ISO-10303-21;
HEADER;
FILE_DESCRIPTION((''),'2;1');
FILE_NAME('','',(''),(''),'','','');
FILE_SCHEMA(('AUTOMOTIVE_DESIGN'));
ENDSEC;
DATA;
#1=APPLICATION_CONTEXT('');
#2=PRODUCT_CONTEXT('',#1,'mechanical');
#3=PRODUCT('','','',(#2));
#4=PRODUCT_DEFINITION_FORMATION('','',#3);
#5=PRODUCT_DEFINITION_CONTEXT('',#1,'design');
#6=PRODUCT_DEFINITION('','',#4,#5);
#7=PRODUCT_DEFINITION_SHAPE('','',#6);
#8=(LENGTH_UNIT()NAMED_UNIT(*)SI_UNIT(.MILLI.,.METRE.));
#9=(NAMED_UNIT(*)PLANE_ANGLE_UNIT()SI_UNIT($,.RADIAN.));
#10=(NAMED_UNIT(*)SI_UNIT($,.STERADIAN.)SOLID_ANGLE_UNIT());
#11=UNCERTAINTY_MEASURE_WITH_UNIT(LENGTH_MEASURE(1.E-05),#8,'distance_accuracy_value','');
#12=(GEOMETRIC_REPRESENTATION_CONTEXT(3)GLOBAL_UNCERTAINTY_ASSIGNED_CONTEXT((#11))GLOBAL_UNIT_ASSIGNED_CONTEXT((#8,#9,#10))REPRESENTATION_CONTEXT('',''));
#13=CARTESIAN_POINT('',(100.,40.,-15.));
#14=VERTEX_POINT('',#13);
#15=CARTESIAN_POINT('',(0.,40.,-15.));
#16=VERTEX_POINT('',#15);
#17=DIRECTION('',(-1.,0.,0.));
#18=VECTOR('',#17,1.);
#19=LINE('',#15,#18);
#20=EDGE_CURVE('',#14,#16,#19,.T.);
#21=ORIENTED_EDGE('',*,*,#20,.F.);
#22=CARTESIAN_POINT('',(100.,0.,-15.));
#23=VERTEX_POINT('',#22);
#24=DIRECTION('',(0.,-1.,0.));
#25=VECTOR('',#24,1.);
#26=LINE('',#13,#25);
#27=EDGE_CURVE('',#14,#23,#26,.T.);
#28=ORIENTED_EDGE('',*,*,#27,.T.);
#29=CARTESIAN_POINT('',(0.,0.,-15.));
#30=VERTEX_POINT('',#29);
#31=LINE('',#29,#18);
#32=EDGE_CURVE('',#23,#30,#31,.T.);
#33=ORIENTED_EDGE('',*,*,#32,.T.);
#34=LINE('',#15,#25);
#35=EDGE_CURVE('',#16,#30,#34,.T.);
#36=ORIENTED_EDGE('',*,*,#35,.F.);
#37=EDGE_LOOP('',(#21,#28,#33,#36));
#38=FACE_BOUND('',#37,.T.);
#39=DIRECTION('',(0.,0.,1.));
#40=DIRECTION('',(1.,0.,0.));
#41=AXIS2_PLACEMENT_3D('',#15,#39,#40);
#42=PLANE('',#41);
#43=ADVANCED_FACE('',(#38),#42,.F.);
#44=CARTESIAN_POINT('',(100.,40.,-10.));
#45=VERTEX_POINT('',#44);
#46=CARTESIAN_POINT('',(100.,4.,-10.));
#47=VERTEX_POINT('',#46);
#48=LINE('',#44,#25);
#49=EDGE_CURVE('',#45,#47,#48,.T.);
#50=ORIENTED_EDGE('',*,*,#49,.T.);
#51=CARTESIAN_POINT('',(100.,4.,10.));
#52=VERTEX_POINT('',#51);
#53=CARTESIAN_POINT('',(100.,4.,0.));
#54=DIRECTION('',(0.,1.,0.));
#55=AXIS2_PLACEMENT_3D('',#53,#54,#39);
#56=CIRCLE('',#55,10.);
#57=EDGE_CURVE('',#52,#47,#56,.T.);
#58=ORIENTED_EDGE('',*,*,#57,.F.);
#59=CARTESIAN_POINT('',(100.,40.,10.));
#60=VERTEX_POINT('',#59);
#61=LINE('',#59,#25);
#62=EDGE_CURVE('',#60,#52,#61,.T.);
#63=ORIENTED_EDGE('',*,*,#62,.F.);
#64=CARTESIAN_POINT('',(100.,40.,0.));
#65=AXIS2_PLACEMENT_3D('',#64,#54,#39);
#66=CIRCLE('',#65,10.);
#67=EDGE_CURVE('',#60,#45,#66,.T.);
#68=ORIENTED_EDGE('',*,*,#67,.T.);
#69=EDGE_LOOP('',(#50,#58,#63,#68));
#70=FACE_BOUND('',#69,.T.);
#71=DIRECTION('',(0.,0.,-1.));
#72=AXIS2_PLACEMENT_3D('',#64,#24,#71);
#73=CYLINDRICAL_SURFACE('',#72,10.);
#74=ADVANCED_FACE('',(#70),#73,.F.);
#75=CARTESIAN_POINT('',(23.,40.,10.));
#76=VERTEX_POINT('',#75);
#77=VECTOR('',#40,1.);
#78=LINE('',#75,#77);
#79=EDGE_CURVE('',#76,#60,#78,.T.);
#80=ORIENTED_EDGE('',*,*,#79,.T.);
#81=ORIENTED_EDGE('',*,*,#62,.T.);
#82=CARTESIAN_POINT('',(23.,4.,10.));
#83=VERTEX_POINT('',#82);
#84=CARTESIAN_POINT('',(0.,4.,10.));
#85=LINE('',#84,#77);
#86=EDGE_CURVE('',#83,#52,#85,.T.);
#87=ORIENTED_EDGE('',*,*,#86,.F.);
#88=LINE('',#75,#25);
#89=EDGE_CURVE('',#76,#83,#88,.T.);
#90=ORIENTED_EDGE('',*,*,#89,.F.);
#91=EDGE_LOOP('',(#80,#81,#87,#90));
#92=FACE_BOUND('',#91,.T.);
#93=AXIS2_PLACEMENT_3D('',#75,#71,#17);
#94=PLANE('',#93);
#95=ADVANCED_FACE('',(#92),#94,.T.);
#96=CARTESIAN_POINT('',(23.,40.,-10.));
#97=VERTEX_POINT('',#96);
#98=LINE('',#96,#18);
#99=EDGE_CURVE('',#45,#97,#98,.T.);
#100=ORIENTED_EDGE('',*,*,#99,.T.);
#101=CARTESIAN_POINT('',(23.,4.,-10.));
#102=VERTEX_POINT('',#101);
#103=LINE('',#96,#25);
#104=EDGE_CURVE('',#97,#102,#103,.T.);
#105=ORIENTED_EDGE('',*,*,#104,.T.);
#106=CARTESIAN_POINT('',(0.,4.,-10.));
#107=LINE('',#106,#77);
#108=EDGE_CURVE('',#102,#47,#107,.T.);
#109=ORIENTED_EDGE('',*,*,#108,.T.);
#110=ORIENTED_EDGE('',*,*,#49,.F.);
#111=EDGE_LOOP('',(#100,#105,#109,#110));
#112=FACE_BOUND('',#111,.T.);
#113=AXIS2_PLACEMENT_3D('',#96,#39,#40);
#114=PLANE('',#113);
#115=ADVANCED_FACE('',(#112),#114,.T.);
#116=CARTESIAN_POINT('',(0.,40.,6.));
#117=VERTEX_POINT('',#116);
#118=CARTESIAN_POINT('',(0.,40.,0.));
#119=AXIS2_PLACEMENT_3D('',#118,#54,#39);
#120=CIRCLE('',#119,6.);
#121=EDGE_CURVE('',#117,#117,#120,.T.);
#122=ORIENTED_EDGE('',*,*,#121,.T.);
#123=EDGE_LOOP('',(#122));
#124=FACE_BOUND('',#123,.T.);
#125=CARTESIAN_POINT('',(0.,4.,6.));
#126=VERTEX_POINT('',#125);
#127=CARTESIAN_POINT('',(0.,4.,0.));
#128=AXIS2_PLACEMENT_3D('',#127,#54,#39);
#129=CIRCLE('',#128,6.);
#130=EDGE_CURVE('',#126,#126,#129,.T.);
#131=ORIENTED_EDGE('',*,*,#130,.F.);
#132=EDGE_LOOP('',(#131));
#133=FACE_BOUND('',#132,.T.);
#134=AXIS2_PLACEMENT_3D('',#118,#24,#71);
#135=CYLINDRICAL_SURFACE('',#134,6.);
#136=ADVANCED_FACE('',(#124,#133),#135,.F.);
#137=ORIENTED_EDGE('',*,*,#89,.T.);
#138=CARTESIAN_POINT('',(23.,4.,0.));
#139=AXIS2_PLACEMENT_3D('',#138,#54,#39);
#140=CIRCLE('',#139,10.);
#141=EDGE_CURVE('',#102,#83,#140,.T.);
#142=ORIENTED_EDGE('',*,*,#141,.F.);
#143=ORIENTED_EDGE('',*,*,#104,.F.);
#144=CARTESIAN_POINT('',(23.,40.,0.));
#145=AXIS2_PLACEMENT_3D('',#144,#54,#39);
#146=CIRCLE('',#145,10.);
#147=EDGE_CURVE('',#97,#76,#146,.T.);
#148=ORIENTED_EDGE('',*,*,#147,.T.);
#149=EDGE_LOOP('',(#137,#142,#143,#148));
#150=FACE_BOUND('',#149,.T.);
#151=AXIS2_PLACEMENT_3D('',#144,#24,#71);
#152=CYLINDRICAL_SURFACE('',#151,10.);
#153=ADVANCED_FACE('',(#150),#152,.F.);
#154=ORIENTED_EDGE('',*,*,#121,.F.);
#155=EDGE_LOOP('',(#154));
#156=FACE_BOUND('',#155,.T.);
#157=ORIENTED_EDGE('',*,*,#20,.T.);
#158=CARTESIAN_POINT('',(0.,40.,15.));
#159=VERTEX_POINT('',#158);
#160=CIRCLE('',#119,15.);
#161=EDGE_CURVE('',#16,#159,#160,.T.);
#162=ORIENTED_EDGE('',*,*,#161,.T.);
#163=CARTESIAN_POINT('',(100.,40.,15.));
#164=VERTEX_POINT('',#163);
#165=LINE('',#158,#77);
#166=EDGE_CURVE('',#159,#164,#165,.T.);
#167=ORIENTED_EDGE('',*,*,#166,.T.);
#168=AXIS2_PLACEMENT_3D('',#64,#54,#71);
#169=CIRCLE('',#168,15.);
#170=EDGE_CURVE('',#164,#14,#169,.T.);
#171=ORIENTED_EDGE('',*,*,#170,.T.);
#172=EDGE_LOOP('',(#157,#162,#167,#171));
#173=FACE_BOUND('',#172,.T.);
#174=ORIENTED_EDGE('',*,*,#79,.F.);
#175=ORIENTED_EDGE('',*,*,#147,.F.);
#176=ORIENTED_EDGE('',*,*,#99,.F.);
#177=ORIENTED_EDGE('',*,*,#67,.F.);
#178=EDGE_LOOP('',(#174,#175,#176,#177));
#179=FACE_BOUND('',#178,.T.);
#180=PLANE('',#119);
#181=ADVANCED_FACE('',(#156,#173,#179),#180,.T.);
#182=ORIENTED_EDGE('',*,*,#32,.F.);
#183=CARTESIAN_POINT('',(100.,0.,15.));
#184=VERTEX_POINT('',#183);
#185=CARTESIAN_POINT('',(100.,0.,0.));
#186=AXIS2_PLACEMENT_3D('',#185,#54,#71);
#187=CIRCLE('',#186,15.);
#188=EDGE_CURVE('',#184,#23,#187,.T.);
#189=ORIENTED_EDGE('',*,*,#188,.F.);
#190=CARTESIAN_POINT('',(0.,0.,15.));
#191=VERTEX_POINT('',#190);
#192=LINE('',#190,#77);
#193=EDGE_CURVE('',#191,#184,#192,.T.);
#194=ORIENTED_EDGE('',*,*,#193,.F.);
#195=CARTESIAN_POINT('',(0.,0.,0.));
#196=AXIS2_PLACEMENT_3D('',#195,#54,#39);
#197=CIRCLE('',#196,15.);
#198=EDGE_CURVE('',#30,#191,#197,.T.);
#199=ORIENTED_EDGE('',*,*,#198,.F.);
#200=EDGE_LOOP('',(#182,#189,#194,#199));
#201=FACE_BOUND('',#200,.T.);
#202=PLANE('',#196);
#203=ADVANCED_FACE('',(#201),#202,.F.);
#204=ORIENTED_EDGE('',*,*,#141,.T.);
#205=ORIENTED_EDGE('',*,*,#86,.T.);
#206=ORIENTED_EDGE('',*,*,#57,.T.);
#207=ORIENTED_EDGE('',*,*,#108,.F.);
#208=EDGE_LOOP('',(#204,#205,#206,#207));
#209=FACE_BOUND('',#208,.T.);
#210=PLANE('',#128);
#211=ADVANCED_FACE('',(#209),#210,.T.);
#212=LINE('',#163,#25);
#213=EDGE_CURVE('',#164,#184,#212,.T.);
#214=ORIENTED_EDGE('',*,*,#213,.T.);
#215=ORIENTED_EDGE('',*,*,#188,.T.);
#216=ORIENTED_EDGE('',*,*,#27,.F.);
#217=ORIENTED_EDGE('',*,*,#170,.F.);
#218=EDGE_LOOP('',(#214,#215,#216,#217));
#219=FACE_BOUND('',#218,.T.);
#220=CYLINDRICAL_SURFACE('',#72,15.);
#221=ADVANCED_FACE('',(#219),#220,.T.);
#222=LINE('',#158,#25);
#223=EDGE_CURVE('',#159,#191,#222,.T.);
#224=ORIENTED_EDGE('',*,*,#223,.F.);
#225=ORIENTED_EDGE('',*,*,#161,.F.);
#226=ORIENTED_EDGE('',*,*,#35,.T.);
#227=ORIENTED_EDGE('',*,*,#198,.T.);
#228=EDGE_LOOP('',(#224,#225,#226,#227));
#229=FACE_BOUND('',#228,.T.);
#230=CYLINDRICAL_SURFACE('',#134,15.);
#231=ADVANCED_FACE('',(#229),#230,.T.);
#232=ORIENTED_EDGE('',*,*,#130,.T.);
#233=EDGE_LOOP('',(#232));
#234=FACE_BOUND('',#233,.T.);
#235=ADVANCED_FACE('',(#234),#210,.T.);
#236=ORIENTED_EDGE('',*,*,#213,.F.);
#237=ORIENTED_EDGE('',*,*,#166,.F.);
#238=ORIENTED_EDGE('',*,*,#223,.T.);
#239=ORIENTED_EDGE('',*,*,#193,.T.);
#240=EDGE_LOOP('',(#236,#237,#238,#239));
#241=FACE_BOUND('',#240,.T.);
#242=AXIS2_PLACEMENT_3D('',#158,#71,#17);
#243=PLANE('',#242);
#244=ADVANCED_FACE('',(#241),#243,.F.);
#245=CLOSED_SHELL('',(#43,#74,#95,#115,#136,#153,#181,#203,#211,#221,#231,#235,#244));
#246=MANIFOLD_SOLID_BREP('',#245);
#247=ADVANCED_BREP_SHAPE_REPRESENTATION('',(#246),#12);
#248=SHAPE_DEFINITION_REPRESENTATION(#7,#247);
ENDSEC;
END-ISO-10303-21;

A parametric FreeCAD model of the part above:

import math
import FreeCAD as App
import Part
import Sketcher

V = App.Vector
Q = App.Units.Quantity

doc = App.newDocument("Part")
body = doc.addObject("PartDesign::Body", "Body")

# Sketch on XZ plane
sketch1 = doc.addObject("Sketcher::SketchObject", "Sketch")
body.addObject(sketch1)
sketch1.AttachmentSupport = (doc.XZ_Plane, [""])
sketch1.MapMode = "FlatFace"
sketch1.addGeometry([
    Part.LineSegment(V(0, 15, 0), V(100, 15, 0)),  # 0
    Part.ArcOfCircle(Part.Circle(V(100, 0, 0), V(0, 0, 1), 15), math.radians(-90), math.radians(90)),  # 1
    Part.LineSegment(V(100, -15, 0), V(0, -15, 0)),  # 2
    Part.ArcOfCircle(Part.Circle(V(0, 0, 0), V(0, 0, 1), 15), math.radians(90), math.radians(270)),  # 3
    Part.Circle(V(0, 0, 0), V(0, 0, 1), 6),  # 4
    Part.ArcOfCircle(Part.Circle(V(23, 0, 0), V(0, 0, 1), 10), math.radians(90), math.radians(270)),  # 5
    Part.LineSegment(V(23, -10, 0), V(100, -10, 0)),  # 6
    Part.ArcOfCircle(Part.Circle(V(100, 0, 0), V(0, 0, 1), 10), math.radians(-90), math.radians(90)),  # 7
    Part.LineSegment(V(100, 10, 0), V(23, 10, 0)),  # 8
], False)
sketch1.addConstraint([
    Sketcher.Constraint("Tangent", 0, 2, 1, 2),
    Sketcher.Constraint("Tangent", 1, 1, 2, 1),
    Sketcher.Constraint("Tangent", 2, 2, 3, 2),
    Sketcher.Constraint("Tangent", 3, 1, 0, 1),
    Sketcher.Constraint("Tangent", 5, 2, 6, 1),
    Sketcher.Constraint("Tangent", 6, 2, 7, 1),
    Sketcher.Constraint("Tangent", 7, 2, 8, 1),
    Sketcher.Constraint("Tangent", 8, 2, 5, 1),
    Sketcher.Constraint("Horizontal", 0),
    Sketcher.Constraint("Horizontal", 2),
    Sketcher.Constraint("Horizontal", 6),
    Sketcher.Constraint("Horizontal", 8),
    Sketcher.Constraint("Coincident", 3, 3, -1, 1),
    Sketcher.Constraint("Coincident", 4, 3, -1, 1),
    Sketcher.Constraint("Coincident", 7, 3, 1, 3),
    Sketcher.Constraint("Diameter", 4, Q("12 mm")),
    Sketcher.Constraint("Radius", 1, Q("15 mm")),
    Sketcher.Constraint("Radius", 5, Q("10 mm")),
    Sketcher.Constraint("DistanceX", 0, 1, 0, 2, Q("100 mm")),
    Sketcher.Constraint("DistanceX", 6, 1, 6, 2, Q("77 mm")),
])
pad1 = doc.addObject("PartDesign::Pad", "Pad")
body.addObject(pad1)
pad1.Profile = sketch1
pad1.Length = 40
pad1.Reversed = True

# Sketch on XZ plane
sketch2 = doc.addObject("Sketcher::SketchObject", "Sketch001")
body.addObject(sketch2)
sketch2.AttachmentSupport = (doc.XZ_Plane, [""])
sketch2.MapMode = "FlatFace"
sketch2.addGeometry([
    Part.LineSegment(V(100, -10, 0), V(23, -10, 0)),  # 0
    Part.ArcOfCircle(Part.Circle(V(23, 0, 0), V(0, 0, 1), 10), math.radians(90), math.radians(270)),  # 1
    Part.LineSegment(V(23, 10, 0), V(100, 10, 0)),  # 2
    Part.ArcOfCircle(Part.Circle(V(100, 0, 0), V(0, 0, 1), 10), math.radians(-90), math.radians(90)),  # 3
    Part.Circle(V(0, 0, 0), V(0, 0, 1), 6),  # 4
], False)
sketch2.addConstraint([
    Sketcher.Constraint("Tangent", 0, 2, 1, 2),
    Sketcher.Constraint("Tangent", 1, 1, 2, 1),
    Sketcher.Constraint("Tangent", 2, 2, 3, 2),
    Sketcher.Constraint("Tangent", 3, 1, 0, 1),
    Sketcher.Constraint("Horizontal", 0),
    Sketcher.Constraint("Horizontal", 2),
    Sketcher.Constraint("Coincident", 4, 3, -1, 1),
    Sketcher.Constraint("PointOnObject", 1, 3, -1),
    Sketcher.Constraint("Diameter", 4, Q("12 mm")),
    Sketcher.Constraint("Radius", 1, Q("10 mm")),
    Sketcher.Constraint("DistanceX", 0, 2, 0, 1, Q("77 mm")),
    Sketcher.Constraint("DistanceX", -1, 1, 1, 3, Q("23 mm")),
])
pad2 = doc.addObject("PartDesign::Pad", "Pad001")
body.addObject(pad2)
pad2.Profile = sketch2
pad2.Length = 4
pad2.Reversed = True

doc.recompute()
